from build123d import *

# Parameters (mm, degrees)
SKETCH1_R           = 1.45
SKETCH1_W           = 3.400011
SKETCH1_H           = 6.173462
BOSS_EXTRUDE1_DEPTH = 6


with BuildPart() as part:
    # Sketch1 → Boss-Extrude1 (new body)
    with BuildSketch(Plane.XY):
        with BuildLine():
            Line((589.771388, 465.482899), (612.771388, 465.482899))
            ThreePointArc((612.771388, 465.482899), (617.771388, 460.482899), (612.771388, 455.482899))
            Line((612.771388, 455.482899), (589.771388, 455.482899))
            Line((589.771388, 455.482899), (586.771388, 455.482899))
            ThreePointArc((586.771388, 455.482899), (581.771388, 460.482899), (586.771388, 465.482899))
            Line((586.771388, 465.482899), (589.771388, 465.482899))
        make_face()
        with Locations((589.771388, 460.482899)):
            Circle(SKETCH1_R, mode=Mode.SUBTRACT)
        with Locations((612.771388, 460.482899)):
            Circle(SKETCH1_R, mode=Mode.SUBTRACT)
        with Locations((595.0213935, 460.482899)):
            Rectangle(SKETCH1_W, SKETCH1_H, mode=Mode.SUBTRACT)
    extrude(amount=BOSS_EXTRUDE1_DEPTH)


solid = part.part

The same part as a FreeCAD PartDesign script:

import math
import FreeCAD as App
import Part
import Sketcher
from FreeCAD import Vector


def add_polygon(sketch, points):
    """Adds a closed chain of lines whose ends are joined by coincident constraints."""
    first, n = sketch.GeometryCount, len(points)
    for a, b in zip(points, points[1:] + points[:1]):
        sketch.addGeometry(Part.LineSegment(App.Vector(*a, 0), App.Vector(*b, 0)), False)
    for i in range(n):
        sketch.addConstraint(Sketcher.Constraint("Coincident", first + i, 2, first + (i + 1) % n, 1))

doc = App.newDocument("Part")
body = doc.addObject("PartDesign::Body", "Body")

# Sketch on XY plane
sketch1 = body.newObject("Sketcher::SketchObject", "Sketch")
sketch1.AttachmentSupport = (doc.getObject("XY_Plane"), [""])
sketch1.MapMode = "FlatFace"
sketch1.addGeometry(Part.ArcOfCircle(Part.Circle(Vector(612.8, 460.5, 0), Vector(0, 0, 1), 5), math.radians(-90), math.radians(90)), False)  # 0
sketch1.addGeometry(Part.LineSegment(Vector(612.8, 465.5, 0), Vector(586.8, 465.5, 0)), False)  # 1
sketch1.addGeometry(Part.ArcOfCircle(Part.Circle(Vector(586.8, 460.5, 0), Vector(0, 0, 1), 5), math.radians(90), math.radians(270)), False)  # 2
sketch1.addGeometry(Part.LineSegment(Vector(586.8, 455.5, 0), Vector(612.8, 455.5, 0)), False)  # 3
sketch1.addGeometry(Part.Circle(Vector(612.8, 460.5, 0), Vector(0, 0, 1), 1.4), False)  # 4
add_polygon(sketch1, [(593.3, 457.4), (593.3, 463.6), (596.7, 463.6), (596.7, 457.4)])  # lines 5-8
sketch1.addGeometry(Part.Circle(Vector(589.8, 460.5, 0), Vector(0, 0, 1), 1.4), False)  # 9
sketch1.addConstraint([
    Sketcher.Constraint("Tangent", 0, 2, 1, 1),
    Sketcher.Constraint("Tangent", 1, 2, 2, 1),
    Sketcher.Constraint("Tangent", 2, 2, 3, 1),
    Sketcher.Constraint("Tangent", 3, 2, 0, 1),
    Sketcher.Constraint("Horizontal", 1),
    Sketcher.Constraint("Horizontal", 3),
    Sketcher.Constraint("Vertical", 5),
    Sketcher.Constraint("Horizontal", 6),
    Sketcher.Constraint("Vertical", 7),
    Sketcher.Constraint("Horizontal", 8),
    Sketcher.Constraint("Coincident", 4, 3, 0, 3),
    Sketcher.Constraint("Equal", 4, 9),
    Sketcher.Constraint("Horizontal", 4, 3, 9, 3),
    Sketcher.Constraint("Radius", 0, 5.0),
    Sketcher.Constraint("Diameter", 4, 2.9),
    Sketcher.Constraint("DistanceX", 1, 2, 1, 1, 26.0),
    Sketcher.Constraint("DistanceX", 2, 3, 9, 3, 3.0),
    Sketcher.Constraint("DistanceX", 9, 3, 5, 2, 3.55),
    Sketcher.Constraint("DistanceX", 6, 1, 6, 2, 3.400011),
    Sketcher.Constraint("DistanceY", -1, 1, 0, 3, 460.482899),
    Sketcher.Constraint("DistanceX", -1, 1, 6, 2, 596.721399),
    Sketcher.Constraint("DistanceY", 5, 1, 5, 2, 6.173462),
    Sketcher.Constraint("DistanceY", -1, 1, 5, 2, 463.56963),
])
pad1 = body.newObject("PartDesign::Pad", "Pad")
pad1.Profile = sketch1
pad1.Length = 6

doc.recompute()
